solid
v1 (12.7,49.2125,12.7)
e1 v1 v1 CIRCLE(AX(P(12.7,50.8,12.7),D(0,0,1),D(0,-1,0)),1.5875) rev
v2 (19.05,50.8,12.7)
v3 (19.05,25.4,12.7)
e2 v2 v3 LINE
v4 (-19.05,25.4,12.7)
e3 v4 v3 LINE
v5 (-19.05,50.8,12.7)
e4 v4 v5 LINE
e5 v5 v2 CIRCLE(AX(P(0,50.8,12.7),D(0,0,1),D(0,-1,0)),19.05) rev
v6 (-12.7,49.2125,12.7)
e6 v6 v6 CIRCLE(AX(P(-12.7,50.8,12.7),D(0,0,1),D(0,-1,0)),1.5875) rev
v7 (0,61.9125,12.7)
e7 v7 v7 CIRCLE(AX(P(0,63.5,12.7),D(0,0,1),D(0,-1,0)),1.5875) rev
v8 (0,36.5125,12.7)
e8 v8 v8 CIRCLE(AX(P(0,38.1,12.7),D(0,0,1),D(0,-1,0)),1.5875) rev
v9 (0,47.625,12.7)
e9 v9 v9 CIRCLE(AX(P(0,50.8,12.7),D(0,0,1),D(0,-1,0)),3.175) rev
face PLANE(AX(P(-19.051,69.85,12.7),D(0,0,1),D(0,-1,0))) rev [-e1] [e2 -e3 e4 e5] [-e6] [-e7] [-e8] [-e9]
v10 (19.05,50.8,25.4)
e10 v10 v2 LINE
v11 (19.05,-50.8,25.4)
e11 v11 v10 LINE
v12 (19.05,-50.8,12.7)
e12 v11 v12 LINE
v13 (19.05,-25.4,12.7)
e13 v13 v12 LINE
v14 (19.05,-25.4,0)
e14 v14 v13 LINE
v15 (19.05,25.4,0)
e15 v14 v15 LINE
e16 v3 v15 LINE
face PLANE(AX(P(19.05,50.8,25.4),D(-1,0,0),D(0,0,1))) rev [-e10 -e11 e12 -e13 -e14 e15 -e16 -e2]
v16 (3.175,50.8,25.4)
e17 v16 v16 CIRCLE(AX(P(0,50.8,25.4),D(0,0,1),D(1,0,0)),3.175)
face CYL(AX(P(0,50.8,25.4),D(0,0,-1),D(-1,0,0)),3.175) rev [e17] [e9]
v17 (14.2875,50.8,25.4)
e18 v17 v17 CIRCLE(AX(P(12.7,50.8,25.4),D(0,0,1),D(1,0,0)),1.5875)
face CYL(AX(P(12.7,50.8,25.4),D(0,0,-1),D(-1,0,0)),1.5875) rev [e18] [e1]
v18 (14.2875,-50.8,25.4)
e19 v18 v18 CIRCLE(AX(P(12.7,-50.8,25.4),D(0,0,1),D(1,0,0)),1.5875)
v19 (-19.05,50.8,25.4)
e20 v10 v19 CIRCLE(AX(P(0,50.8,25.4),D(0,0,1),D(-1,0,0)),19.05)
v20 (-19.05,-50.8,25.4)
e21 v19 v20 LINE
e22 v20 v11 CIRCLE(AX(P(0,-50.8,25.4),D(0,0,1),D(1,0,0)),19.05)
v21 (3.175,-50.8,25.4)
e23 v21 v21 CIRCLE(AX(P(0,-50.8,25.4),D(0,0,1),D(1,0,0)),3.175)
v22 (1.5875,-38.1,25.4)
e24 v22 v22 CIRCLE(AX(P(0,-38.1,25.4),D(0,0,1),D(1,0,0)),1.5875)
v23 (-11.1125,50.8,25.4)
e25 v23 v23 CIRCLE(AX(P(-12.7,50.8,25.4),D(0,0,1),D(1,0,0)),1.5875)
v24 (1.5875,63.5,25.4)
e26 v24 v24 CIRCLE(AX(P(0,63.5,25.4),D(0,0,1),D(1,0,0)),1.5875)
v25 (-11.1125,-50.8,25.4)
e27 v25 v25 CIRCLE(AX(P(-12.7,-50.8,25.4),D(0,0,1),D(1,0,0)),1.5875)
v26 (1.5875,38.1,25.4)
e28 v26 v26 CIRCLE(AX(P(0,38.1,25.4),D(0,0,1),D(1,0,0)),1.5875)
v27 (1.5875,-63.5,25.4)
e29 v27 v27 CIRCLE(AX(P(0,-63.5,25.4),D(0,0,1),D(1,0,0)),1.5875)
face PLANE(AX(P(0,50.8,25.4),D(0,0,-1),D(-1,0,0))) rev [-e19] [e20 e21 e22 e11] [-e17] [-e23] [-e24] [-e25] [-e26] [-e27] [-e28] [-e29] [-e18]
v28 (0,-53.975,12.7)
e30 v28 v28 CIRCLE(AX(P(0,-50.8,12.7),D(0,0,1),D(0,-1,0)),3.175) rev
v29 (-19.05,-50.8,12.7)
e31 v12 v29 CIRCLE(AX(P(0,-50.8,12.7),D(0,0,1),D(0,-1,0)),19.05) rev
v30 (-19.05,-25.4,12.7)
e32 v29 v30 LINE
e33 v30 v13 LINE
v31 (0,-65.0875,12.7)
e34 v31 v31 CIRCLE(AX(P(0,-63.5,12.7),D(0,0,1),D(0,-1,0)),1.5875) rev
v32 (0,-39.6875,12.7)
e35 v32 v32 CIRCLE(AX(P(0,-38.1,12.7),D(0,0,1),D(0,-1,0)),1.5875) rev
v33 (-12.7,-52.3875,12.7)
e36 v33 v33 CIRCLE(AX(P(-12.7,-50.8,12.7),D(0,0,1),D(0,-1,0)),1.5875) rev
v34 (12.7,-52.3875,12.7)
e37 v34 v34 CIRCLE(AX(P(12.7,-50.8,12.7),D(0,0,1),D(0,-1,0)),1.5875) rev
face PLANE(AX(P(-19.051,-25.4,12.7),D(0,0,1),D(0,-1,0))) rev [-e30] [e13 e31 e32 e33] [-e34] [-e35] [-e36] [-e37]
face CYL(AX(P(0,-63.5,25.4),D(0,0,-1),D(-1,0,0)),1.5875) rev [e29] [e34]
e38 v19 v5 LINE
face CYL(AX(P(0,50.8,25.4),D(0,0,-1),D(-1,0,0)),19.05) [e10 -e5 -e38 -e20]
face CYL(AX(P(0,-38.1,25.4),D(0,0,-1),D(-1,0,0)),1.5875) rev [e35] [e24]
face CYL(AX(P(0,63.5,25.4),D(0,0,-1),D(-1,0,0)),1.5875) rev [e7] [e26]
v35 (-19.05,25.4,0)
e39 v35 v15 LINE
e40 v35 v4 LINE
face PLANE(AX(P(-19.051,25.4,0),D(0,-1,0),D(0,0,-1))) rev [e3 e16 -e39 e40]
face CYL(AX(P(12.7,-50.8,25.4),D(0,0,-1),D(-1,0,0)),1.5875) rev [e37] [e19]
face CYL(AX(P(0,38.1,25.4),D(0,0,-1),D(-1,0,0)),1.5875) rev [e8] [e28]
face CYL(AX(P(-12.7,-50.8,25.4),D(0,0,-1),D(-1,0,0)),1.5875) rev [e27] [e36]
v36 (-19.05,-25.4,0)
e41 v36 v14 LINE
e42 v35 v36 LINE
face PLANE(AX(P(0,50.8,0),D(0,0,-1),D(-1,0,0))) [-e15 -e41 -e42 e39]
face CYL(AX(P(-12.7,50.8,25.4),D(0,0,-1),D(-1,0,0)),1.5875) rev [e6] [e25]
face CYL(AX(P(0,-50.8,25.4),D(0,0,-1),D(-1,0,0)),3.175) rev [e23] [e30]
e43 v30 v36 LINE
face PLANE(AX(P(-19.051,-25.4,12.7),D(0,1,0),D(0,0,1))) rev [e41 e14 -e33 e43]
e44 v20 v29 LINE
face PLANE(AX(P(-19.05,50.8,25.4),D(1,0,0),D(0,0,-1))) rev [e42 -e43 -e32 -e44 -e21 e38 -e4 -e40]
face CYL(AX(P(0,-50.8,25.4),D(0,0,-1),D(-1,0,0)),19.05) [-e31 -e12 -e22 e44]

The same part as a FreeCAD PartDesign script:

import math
import FreeCAD as App
import Part
import Sketcher
from FreeCAD import Vector
Q = App.Units.Quantity


def add_polygon(sketch, points):
    """Adds a closed chain of lines whose ends are joined by coincident constraints."""
    first, n = sketch.GeometryCount, len(points)
    for a, b in zip(points, points[1:] + points[:1]):
        sketch.addGeometry(Part.LineSegment(App.Vector(*a, 0), App.Vector(*b, 0)), False)
    for i in range(n):
        sketch.addConstraint(Sketcher.Constraint("Coincident", first + i, 2, first + (i + 1) % n, 1))

doc = App.newDocument("Part")
body = doc.addObject("PartDesign::Body", "Body")

# Sketch on XY plane
sketch1 = doc.addObject("Sketcher::SketchObject", "Sketch")
body.addObject(sketch1)
sketch1.AttachmentSupport = (doc.XY_Plane, [""])
sketch1.MapMode = "FlatFace"
sketch1.addGeometry([
    Part.LineSegment(Vector(-19.05, 50.8, 0), Vector(-19.05, -50.8, 0)),  # 0
    Part.ArcOfCircle(Part.Circle(Vector(0, -50.8, 0), Vector(0, 0, 1), 19.05), math.radians(180), math.radians(360)),  # 1
    Part.LineSegment(Vector(19.05, -50.8, 0), Vector(19.05, 50.8, 0)),  # 2
    Part.ArcOfCircle(Part.Circle(Vector(0, 50.8, 0), Vector(0, 0, 1), 19.05), math.radians(0), math.radians(180)),  # 3
    Part.Circle(Vector(-12.7, -50.8, 0), Vector(0, 0, 1), 1.5875),  # 4
    Part.Circle(Vector(0, -63.5, 0), Vector(0, 0, 1), 1.5875),  # 5
    Part.Circle(Vector(0, -50.8, 0), Vector(0, 0, 1), 3.175),  # 6
    Part.Circle(Vector(0, -38.1, 0), Vector(0, 0, 1), 1.5875),  # 7
    Part.Circle(Vector(12.7, -50.8, 0), Vector(0, 0, 1), 1.5875),  # 8
    Part.Circle(Vector(-12.7, 50.8, 0), Vector(0, 0, 1), 1.5875),  # 9
    Part.Circle(Vector(0, 38.1, 0), Vector(0, 0, 1), 1.5875),  # 10
    Part.Circle(Vector(0, 50.8, 0), Vector(0, 0, 1), 3.175),  # 11
    Part.Circle(Vector(0, 63.5, 0), Vector(0, 0, 1), 1.5875),  # 12
    Part.Circle(Vector(12.7, 50.8, 0), Vector(0, 0, 1), 1.5875),  # 13
], False)
sketch1.addConstraint([
    Sketcher.Constraint("Tangent", 0, 2, 1, 1),
    Sketcher.Constraint("Tangent", 1, 2, 2, 1),
    Sketcher.Constraint("Tangent", 2, 2, 3, 1),
    Sketcher.Constraint("Tangent", 3, 2, 0, 1),
    Sketcher.Constraint("Vertical", 0),
    Sketcher.Constraint("Vertical", 2),
    Sketcher.Constraint("Coincident", 6, 3, 1, 3),
    Sketcher.Constraint("Coincident", 11, 3, 3, 3),
    Sketcher.Constraint("Equal", 4, 5),
    Sketcher.Constraint("Equal", 5, 7),
    Sketcher.Constraint("Equal", 7, 8),
    Sketcher.Constraint("Equal", 8, 9),
    Sketcher.Constraint("Equal", 9, 10),
    Sketcher.Constraint("Equal", 6, 11),
    Sketcher.Constraint("Equal", 10, 12),
    Sketcher.Constraint("Equal", 12, 13),
    Sketcher.Constraint("Symmetric", 1, 3, 3, 3, -1, 1),
    Sketcher.Constraint("Symmetric", 8, 3, 9, 3, -1, 1),
    Sketcher.Constraint("Symmetric", 7, 3, 10, 3, -1, 1),
    Sketcher.Constraint("Symmetric", 5, 3, 12, 3, -1, 1),
    Sketcher.Constraint("Symmetric", 4, 3, 13, 3, -1, 1),
    Sketcher.Constraint("Symmetric", 4, 3, 8, 3, -2),
    Sketcher.Constraint("PointOnObject", 5, 3, -2),
    Sketcher.Constraint("PointOnObject", 7, 3, -2),
    Sketcher.Constraint("Horizontal", 1, 3, 4, 3),
    Sketcher.Constraint("Diameter", 6, Q("0.25 in")),
    Sketcher.Constraint("DistanceY", 0, 2, 0, 1, Q("4 in")),
    Sketcher.Constraint("Radius", 1, Q("0.75 in")),
    Sketcher.Constraint("Diameter", 4, Q("0.125 in")),
    Sketcher.Constraint("DistanceY", 5, 3, 7, 3, Q("1 in")),
    Sketcher.Constraint("DistanceX", 4, 3, 8, 3, Q("1 in")),
    Sketcher.Constraint("DistanceY", 7, 3, 10, 3, Q("3 in")),
])
pad1 = doc.addObject("PartDesign::Pad", "Pad")
body.addObject(pad1)
pad1.Profile = sketch1
pad1.Length = Q("1 in")

# Sketch on YZ plane
sketch2 = doc.addObject("Sketcher::SketchObject", "Sketch001")
body.addObject(sketch2)
sketch2.AttachmentSupport = (doc.YZ_Plane, [""])
sketch2.MapMode = "FlatFace"
sketch2.AttachmentOffset = App.Placement(Vector(0, 0, 0.75 * 25.4), App.Rotation())
add_polygon(sketch2, [(69.85, 12.7), (25.4, 12.7), (25.4, 0), (69.85, 0)])  # lines 0-3
sketch2.addConstraint([
    Sketcher.Constraint("Horizontal", 0),
    Sketcher.Constraint("Vertical", 1),
    Sketcher.Constraint("Horizontal", 2),
    Sketcher.Constraint("Vertical", 3),
    Sketcher.Constraint("PointOnObject", 1, 2, -1),
    Sketcher.Constraint("DistanceY", 1, 2, 1, 1, Q("0.5 in")),
    Sketcher.Constraint("DistanceX", -1, 1, 0, 2, Q("1 in")),
    Sketcher.Constraint("DistanceX", 0, 2, 0, 1, Q("1.75 in")),
])
pocket1 = doc.addObject("PartDesign::Pocket", "Pocket")
body.addObject(pocket1)
pocket1.Profile = sketch2
pocket1.Length = Q("1.5 in")

# Sketch on YZ plane
sketch3 = doc.addObject("Sketcher::SketchObject", "Sketch002")
body.addObject(sketch3)
sketch3.AttachmentSupport = (doc.YZ_Plane, [""])
sketch3.MapMode = "FlatFace"
sketch3.AttachmentOffset = App.Placement(Vector(0, 0, 0.75 * 25.4), App.Rotation())
add_polygon(sketch3, [(-25.4, 12.7), (-69.85, 12.7), (-69.85, 0), (-25.4, 0)])  # lines 0-3
sketch3.addConstraint([
    Sketcher.Constraint("Horizontal", 0),
    Sketcher.Constraint("Vertical", 1),
    Sketcher.Constraint("Horizontal", 2),
    Sketcher.Constraint("Vertical", 3),
    Sketcher.Constraint("PointOnObject", 1, 2, -1),
    Sketcher.Constraint("DistanceY", 1, 2, 1, 1, Q("0.5 in")),
    Sketcher.Constraint("DistanceX", 2, 2, -1, 1, Q("1 in")),
    Sketcher.Constraint("DistanceX", 0, 2, 0, 1, Q("1.75 in")),
])
pocket2 = doc.addObject("PartDesign::Pocket", "Pocket001")
body.addObject(pocket2)
pocket2.Profile = sketch3
pocket2.Type = "UpToFirst"

doc.recompute()
